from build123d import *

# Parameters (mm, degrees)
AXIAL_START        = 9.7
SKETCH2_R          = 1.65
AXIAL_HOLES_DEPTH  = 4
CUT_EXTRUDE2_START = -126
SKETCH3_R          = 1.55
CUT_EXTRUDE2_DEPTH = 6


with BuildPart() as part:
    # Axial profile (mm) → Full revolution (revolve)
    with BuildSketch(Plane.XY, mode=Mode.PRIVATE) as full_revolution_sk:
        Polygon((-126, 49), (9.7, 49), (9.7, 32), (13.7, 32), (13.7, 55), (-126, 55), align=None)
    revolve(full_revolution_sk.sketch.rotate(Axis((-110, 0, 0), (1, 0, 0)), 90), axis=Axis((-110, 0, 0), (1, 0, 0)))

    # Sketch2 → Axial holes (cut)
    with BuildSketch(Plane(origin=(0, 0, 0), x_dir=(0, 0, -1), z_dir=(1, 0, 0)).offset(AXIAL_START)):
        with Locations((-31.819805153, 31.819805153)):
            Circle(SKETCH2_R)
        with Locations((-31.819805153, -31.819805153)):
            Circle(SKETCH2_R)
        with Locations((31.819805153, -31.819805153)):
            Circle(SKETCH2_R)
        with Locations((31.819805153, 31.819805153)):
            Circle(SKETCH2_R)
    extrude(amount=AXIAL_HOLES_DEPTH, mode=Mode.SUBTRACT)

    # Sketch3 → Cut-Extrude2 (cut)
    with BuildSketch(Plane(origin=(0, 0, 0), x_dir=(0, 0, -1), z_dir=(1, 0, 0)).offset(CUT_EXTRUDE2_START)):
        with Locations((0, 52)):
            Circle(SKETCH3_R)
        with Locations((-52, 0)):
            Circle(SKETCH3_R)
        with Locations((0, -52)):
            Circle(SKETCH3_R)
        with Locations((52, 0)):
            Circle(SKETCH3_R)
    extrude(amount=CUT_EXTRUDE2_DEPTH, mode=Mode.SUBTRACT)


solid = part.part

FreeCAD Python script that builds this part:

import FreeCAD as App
import Part
import Sketcher
from FreeCAD import Vector
Q = App.Units.Quantity

doc = App.newDocument("Part")
body = doc.addObject("PartDesign::Body", "Body")

# Sketch on XY plane
sketch1 = body.newObject("Sketcher::SketchObject", "Sketch")
sketch1.AttachmentSupport = (doc.getObject("XY_Plane"), [""])
sketch1.MapMode = "FlatFace"
sketch1.addGeometry(Part.LineSegment(Vector(-126, 49, 0), Vector(9.7, 49, 0)), False)
sketch1.addGeometry(Part.LineSegment(Vector(9.7, 49, 0), Vector(9.7, 32, 0)), False)
sketch1.addGeometry(Part.LineSegment(Vector(9.7, 32, 0), Vector(13.7, 32, 0)), False)
sketch1.addGeometry(Part.LineSegment(Vector(13.7, 32, 0), Vector(13.7, 55, 0)), False)
sketch1.addGeometry(Part.LineSegment(Vector(13.7, 55, 0), Vector(-126, 55, 0)), False)
sketch1.addGeometry(Part.LineSegment(Vector(-126, 55, 0), Vector(-126, 49, 0)), False)
sketch1.addConstraint(Sketcher.Constraint("Coincident", 0, 2, 1, 1))
sketch1.addConstraint(Sketcher.Constraint("Coincident", 1, 2, 2, 1))
sketch1.addConstraint(Sketcher.Constraint("Coincident", 2, 2, 3, 1))
sketch1.addConstraint(Sketcher.Constraint("Coincident", 3, 2, 4, 1))
sketch1.addConstraint(Sketcher.Constraint("Coincident", 4, 2, 5, 1))
sketch1.addConstraint(Sketcher.Constraint("Coincident", 5, 2, 0, 1))
sketch1.addConstraint(Sketcher.Constraint("Horizontal", 0))
sketch1.addConstraint(Sketcher.Constraint("Vertical", 1))
sketch1.addConstraint(Sketcher.Constraint("Horizontal", 2))
sketch1.addConstraint(Sketcher.Constraint("Vertical", 3))
sketch1.addConstraint(Sketcher.Constraint("Horizontal", 4))
sketch1.addConstraint(Sketcher.Constraint("Vertical", 5))
sketch1.addConstraint(Sketcher.Constraint("DistanceX", 2, 1, 2, 2, Q("4 mm")))
sketch1.addConstraint(Sketcher.Constraint("DistanceY", 1, 2, 1, 1, Q("17 mm")))
sketch1.addConstraint(Sketcher.Constraint("DistanceY", 3, 1, 3, 2, Q("23 mm")))
sketch1.addConstraint(Sketcher.Constraint("DistanceX", 0, 1, 0, 2, Q("135.7 mm")))
sketch1.addConstraint(Sketcher.Constraint("DistanceY", -1, 1, 0, 2, Q("49 mm")))
sketch1.addConstraint(Sketcher.Constraint("DistanceX", 4, 2, -1, 1, Q("126 mm")))
revolution = body.newObject("PartDesign::Revolution", "Revolution")
revolution.Profile = sketch1
revolution.ReferenceAxis = (sketch1, ["H_Axis"])
revolution.Angle = 360

# Sketch on YZ plane
sketch2 = body.newObject("Sketcher::SketchObject", "Sketch001")
sketch2.AttachmentSupport = (doc.getObject("YZ_Plane"), [""])
sketch2.MapMode = "FlatFace"
sketch2.AttachmentOffset = App.Placement(Vector(0, 0, 9.7), App.Rotation())
sketch2.addGeometry(Part.Circle(Vector(31.819805, 31.819805, 0), Vector(0, 0, 1), 1.65), False)
sketch2.addGeometry(Part.Circle(Vector(-31.819805, 31.819805, 0), Vector(0, 0, 1), 1.65), False)
sketch2.addGeometry(Part.Circle(Vector(-31.819805, -31.819805, 0), Vector(0, 0, 1), 1.65), False)
sketch2.addGeometry(Part.Circle(Vector(31.819805, -31.819805, 0), Vector(0, 0, 1), 1.65), False)
sketch2.addConstraint(Sketcher.Constraint("Equal", 0, 1))
sketch2.addConstraint(Sketcher.Constraint("Equal", 1, 2))
sketch2.addConstraint(Sketcher.Constraint("Equal", 2, 3))
sketch2.addConstraint(Sketcher.Constraint("Symmetric", 0, 3, 2, 3, -1, 1))
sketch2.addConstraint(Sketcher.Constraint("Symmetric", 1, 3, 3, 3, -1, 1))
sketch2.addConstraint(Sketcher.Constraint("Symmetric", 0, 3, 1, 3, -2))
sketch2.addConstraint(Sketcher.Constraint("Diameter", 0, Q("3.3 mm")))
sketch2.addConstraint(Sketcher.Constraint("DistanceX", 1, 3, 0, 3, Q("63.63961 mm")))
sketch2.addConstraint(Sketcher.Constraint("DistanceY", 2, 3, 1, 3, Q("63.63961 mm")))
pocket1 = body.newObject("PartDesign::Pocket", "Pocket")
pocket1.Profile = sketch2
pocket1.Length = 4
pocket1.Reversed = True

# Sketch on YZ plane
sketch3 = body.newObject("Sketcher::SketchObject", "Sketch002")
sketch3.AttachmentSupport = (doc.getObject("YZ_Plane"), [""])
sketch3.MapMode = "FlatFace"
sketch3.AttachmentOffset = App.Placement(Vector(0, 0, -126), App.Rotation())
sketch3.addGeometry(Part.Circle(Vector(52, 0, 0), Vector(0, 0, 1), 1.55), False)
sketch3.addGeometry(Part.Circle(Vector(0, 52, 0), Vector(0, 0, 1), 1.55), False)
sketch3.addGeometry(Part.Circle(Vector(-52, 0, 0), Vector(0, 0, 1), 1.55), False)
sketch3.addGeometry(Part.Circle(Vector(0, -52, 0), Vector(0, 0, 1), 1.55), False)
sketch3.addConstraint(Sketcher.Constraint("Equal", 0, 1))
sketch3.addConstraint(Sketcher.Constraint("Equal", 1, 2))
sketch3.addConstraint(Sketcher.Constraint("Equal", 2, 3))
sketch3.addConstraint(Sketcher.Constraint("Symmetric", 0, 3, 2, 3, -1, 1))
sketch3.addConstraint(Sketcher.Constraint("Symmetric", 1, 3, 3, 3, -1, 1))
sketch3.addConstraint(Sketcher.Constraint("PointOnObject", 0, 3, -1))
sketch3.addConstraint(Sketcher.Constraint("PointOnObject", 1, 3, -2))
sketch3.addConstraint(Sketcher.Constraint("Diameter", 0, Q("3.1 mm")))
sketch3.addConstraint(Sketcher.Constraint("DistanceX", -1, 1, 0, 3, Q("52 mm")))
sketch3.addConstraint(Sketcher.Constraint("DistanceY", -1, 1, 1, 3, Q("52 mm")))
pocket2 = body.newObject("PartDesign::Pocket", "Pocket001")
pocket2.Profile = sketch3
pocket2.Length = 6
pocket2.Reversed = True

doc.recompute()
